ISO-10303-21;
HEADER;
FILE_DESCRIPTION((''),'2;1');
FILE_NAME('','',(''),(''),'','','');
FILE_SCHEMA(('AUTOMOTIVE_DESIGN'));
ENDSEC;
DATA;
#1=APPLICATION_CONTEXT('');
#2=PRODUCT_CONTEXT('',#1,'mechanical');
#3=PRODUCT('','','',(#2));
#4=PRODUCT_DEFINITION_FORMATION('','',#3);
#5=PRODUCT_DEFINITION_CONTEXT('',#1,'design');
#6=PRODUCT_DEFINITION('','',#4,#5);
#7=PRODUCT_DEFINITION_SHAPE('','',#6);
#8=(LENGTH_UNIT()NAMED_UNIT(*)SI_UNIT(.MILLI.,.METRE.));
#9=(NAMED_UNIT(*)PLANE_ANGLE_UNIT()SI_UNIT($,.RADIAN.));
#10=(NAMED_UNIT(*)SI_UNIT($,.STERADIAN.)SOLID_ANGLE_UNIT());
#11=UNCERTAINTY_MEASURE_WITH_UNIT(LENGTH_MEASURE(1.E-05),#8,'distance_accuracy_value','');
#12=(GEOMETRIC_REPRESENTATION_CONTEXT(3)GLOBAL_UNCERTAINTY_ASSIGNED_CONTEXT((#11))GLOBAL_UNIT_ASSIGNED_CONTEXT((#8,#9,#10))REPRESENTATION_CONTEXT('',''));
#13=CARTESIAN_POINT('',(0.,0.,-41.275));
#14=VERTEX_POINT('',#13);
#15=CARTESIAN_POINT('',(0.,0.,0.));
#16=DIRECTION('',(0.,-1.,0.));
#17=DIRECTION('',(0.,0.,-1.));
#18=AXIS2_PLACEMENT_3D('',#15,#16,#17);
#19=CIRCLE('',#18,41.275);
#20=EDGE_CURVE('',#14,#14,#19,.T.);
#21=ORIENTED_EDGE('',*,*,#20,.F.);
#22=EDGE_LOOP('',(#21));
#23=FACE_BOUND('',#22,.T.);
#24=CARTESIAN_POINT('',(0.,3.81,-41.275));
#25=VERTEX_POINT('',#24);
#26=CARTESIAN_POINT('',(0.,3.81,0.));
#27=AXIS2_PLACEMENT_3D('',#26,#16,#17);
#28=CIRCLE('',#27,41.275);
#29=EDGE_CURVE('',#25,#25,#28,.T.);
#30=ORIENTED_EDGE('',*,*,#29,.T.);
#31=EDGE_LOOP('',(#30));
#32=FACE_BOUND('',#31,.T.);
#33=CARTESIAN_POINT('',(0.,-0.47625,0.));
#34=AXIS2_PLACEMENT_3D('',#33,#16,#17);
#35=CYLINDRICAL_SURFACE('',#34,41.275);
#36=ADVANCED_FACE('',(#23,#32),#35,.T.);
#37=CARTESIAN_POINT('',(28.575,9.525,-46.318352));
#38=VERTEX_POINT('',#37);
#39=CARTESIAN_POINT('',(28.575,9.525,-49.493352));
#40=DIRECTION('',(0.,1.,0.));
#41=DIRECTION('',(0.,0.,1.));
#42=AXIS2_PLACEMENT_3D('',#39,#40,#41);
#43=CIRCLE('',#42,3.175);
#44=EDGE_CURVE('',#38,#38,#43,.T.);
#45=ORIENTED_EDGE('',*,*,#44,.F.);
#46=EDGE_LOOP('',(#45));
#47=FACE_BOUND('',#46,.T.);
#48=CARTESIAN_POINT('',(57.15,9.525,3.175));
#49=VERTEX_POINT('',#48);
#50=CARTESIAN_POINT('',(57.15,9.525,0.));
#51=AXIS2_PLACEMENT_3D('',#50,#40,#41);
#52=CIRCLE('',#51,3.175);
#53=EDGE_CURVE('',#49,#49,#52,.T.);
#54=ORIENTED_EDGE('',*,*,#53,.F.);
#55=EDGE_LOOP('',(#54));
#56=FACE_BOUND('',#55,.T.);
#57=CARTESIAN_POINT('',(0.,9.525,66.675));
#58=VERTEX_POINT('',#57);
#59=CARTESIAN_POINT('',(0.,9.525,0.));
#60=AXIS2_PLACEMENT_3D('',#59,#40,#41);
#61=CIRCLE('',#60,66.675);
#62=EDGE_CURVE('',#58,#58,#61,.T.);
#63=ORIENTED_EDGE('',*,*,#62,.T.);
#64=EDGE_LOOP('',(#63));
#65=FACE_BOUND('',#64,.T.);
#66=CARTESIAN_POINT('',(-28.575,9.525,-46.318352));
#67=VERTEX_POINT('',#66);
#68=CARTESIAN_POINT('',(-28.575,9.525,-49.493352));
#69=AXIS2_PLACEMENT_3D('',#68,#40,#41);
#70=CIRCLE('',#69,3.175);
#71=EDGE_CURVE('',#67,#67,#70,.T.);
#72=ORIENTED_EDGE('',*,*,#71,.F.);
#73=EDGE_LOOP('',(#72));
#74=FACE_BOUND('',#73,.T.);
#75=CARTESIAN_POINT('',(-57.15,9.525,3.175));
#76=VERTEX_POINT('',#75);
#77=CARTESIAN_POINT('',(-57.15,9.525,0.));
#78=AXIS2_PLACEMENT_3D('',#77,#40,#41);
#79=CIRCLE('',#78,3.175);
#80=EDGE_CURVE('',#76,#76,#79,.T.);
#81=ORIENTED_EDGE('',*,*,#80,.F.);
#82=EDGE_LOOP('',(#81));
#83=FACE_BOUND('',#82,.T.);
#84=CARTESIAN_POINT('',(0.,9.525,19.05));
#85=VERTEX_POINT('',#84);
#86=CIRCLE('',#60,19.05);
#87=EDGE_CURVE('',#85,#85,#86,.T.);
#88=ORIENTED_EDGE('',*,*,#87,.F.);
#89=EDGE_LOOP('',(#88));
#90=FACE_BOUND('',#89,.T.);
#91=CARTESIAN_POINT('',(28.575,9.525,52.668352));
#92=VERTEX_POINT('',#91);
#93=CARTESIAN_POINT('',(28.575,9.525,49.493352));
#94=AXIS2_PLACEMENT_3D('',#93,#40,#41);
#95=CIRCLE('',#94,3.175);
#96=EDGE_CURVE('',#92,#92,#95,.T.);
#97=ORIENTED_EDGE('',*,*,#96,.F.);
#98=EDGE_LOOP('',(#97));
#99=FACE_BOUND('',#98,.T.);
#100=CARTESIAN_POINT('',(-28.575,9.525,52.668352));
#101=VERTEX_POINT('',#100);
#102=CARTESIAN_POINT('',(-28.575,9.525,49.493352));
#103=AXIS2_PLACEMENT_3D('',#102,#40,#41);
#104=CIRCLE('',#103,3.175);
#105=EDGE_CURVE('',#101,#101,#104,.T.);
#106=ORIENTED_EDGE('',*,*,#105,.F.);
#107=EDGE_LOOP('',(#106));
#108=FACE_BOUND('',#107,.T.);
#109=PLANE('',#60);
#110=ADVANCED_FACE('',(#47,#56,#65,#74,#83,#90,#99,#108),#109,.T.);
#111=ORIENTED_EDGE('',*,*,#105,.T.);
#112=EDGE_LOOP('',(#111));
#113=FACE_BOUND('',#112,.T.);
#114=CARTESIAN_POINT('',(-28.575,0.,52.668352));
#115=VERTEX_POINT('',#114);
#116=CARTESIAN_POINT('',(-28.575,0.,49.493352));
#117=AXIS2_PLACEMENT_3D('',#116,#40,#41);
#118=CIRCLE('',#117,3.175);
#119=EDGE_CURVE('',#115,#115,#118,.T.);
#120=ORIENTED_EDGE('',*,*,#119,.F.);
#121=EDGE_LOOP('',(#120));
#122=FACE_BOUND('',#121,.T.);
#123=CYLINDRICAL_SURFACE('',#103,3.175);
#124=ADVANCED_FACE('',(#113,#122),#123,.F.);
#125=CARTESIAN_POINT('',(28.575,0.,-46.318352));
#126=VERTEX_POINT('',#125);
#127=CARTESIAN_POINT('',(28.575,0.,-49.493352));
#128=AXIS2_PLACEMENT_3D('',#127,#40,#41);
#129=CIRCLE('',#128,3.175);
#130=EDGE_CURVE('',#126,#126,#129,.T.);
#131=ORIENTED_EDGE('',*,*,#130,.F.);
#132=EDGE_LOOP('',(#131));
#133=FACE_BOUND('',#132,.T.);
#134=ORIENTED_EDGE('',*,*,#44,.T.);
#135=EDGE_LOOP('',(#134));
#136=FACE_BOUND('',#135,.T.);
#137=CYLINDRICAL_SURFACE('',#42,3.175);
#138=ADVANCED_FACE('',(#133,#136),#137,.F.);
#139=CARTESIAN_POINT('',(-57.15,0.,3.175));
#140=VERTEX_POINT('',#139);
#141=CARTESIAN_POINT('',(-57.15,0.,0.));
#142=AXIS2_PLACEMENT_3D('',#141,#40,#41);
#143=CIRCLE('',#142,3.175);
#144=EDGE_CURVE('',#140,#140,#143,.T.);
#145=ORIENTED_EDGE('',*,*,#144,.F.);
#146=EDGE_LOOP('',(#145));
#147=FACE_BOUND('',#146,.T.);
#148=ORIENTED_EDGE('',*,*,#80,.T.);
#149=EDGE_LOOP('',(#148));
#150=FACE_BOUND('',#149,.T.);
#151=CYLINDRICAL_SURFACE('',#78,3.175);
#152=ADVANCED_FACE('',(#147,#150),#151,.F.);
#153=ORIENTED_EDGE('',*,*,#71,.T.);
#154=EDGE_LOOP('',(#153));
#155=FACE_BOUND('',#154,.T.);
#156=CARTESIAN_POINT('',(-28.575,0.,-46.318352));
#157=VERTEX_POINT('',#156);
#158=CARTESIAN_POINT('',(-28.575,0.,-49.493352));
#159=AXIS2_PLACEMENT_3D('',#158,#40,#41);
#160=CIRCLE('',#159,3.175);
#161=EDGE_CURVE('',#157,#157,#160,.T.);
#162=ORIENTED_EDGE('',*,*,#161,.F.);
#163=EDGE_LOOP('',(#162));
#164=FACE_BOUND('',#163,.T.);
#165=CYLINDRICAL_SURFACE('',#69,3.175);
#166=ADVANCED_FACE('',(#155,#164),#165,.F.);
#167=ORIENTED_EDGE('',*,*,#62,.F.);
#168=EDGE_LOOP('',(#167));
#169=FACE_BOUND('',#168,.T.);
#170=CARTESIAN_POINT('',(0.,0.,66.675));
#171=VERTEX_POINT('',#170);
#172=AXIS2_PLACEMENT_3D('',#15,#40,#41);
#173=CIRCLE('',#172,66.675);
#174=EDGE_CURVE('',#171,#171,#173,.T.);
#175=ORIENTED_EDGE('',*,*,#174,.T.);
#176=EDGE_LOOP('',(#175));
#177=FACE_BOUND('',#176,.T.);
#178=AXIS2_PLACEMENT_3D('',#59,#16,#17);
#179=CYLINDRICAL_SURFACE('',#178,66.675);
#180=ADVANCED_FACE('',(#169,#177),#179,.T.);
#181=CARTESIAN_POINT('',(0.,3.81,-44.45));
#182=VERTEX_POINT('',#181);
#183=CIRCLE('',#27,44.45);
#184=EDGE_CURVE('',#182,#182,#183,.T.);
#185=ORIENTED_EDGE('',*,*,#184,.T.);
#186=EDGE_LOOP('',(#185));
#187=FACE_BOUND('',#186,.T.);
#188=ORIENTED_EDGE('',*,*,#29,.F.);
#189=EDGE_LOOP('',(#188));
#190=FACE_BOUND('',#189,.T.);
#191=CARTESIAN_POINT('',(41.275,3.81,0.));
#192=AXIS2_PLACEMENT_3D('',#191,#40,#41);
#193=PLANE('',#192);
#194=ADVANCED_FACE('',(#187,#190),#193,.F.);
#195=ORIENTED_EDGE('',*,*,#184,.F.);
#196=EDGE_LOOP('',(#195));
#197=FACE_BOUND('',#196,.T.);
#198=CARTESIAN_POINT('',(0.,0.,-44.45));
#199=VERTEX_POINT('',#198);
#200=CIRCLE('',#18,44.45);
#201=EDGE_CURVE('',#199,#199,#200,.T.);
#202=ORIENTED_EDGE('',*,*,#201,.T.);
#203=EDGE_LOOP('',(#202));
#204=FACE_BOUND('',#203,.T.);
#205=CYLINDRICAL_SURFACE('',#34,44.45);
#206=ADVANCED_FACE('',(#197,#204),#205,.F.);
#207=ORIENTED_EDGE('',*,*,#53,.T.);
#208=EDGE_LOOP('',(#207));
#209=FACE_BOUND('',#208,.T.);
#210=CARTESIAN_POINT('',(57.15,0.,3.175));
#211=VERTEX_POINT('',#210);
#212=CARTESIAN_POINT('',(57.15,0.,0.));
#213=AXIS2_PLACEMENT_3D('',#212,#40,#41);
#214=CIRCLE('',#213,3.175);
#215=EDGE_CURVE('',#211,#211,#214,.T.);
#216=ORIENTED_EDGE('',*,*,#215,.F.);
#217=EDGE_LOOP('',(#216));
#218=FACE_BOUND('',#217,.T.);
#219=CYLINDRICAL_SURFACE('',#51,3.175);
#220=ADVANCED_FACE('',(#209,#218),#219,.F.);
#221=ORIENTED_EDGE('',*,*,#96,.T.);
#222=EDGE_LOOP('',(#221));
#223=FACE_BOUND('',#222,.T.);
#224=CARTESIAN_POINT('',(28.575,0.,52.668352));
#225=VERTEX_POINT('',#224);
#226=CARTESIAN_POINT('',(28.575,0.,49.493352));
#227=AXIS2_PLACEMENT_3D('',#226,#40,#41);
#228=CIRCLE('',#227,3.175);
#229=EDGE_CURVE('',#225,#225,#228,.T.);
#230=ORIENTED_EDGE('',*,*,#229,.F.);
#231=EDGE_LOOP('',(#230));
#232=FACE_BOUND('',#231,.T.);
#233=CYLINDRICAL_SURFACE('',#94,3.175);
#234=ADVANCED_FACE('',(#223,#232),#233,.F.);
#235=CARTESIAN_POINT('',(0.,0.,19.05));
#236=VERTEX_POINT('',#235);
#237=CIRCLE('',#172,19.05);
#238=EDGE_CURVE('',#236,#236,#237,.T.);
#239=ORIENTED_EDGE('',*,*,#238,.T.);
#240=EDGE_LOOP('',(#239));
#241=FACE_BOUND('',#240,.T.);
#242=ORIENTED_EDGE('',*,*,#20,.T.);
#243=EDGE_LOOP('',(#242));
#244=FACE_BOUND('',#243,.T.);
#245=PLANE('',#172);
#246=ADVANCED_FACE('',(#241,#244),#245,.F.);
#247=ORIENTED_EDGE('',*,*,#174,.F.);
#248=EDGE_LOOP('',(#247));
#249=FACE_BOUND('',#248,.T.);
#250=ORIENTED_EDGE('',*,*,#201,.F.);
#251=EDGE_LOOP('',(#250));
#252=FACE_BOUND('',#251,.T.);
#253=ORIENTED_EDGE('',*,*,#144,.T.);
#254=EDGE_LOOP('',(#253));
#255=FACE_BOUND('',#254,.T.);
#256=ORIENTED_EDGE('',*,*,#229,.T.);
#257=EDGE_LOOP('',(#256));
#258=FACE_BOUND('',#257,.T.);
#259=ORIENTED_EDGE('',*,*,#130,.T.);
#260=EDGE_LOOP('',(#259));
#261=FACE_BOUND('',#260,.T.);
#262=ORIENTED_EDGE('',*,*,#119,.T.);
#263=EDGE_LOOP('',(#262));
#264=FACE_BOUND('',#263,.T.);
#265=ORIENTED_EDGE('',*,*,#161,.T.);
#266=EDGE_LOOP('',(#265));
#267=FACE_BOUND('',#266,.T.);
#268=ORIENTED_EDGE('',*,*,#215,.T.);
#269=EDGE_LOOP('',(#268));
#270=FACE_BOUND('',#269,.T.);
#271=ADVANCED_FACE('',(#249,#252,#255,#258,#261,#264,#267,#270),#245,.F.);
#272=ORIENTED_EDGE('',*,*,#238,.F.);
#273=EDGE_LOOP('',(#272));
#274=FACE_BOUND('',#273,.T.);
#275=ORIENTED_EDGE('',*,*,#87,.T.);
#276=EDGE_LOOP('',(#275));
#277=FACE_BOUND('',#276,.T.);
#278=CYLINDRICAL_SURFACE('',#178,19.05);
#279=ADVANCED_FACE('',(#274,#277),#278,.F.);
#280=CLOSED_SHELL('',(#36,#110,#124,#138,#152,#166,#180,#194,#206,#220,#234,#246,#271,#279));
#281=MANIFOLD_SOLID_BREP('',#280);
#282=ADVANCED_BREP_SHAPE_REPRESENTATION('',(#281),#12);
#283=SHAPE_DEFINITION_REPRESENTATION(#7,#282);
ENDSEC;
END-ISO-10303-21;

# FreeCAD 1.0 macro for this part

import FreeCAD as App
import Part
import Sketcher
from FreeCAD import Vector
Q = App.Units.Quantity

doc = App.newDocument("Part")
body = doc.addObject("PartDesign::Body", "Body")

sketch1 = doc.addObject("Sketcher::SketchObject", "Sketch")
body.addObject(sketch1)
sketch1.AttachmentSupport = (doc.XZ_Plane, [""])
sketch1.MapMode = "FlatFace"
sketch1.addGeometry([
    Part.Circle(Vector(0, 0, 0), Vector(0, 0, 1), 67),
    Part.Circle(Vector(0, 0, 0), Vector(0, 0, 1), 19),
], False)
sketch1.addConstraint([
    Sketcher.Constraint("Coincident", 0, 3, -1, 1),
    Sketcher.Constraint("Coincident", 1, 3, -1, 1),
    Sketcher.Constraint("Diameter", 1, Q("1.5 in")),
    Sketcher.Constraint("Diameter", 0, Q("5.25 in")),
])
pad1 = doc.addObject("PartDesign::Pad", "Pad")
body.addObject(pad1)
pad1.Profile = sketch1
pad1.Length = Q("0.375 in")
pad1.Reversed = True

sketch2 = doc.addObject("Sketcher::SketchObject", "Sketch001")
body.addObject(sketch2)
sketch2.AttachmentSupport = (doc.XY_Plane, [""])
sketch2.MapMode = "FlatFace"
sketch2.addGeometry([
    Part.LineSegment(Vector(41.3, 3.8, 0), Vector(41.3, 0, 0)),
    Part.LineSegment(Vector(41.3, 0, 0), Vector(44.5, 0, 0)),
    Part.LineSegment(Vector(44.5, 0, 0), Vector(44.5, 3.8, 0)),
    Part.LineSegment(Vector(44.5, 3.8, 0), Vector(41.3, 3.8, 0)),
], False)
sketch2.addConstraint([
    Sketcher.Constraint("Coincident", 0, 2, 1, 1),
    Sketcher.Constraint("Coincident", 1, 2, 2, 1),
    Sketcher.Constraint("Coincident", 2, 2, 3, 1),
    Sketcher.Constraint("Coincident", 3, 2, 0, 1),
    Sketcher.Constraint("Vertical", 0),
    Sketcher.Constraint("Horizontal", 1),
    Sketcher.Constraint("Vertical", 2),
    Sketcher.Constraint("Horizontal", 3),
    Sketcher.Constraint("PointOnObject", 0, 2, -1),
    Sketcher.Constraint("DistanceY", 0, 2, 0, 1, Q("0.15 in")),
    Sketcher.Constraint("DistanceX", 1, 1, 1, 2, Q("0.125 in")),
    Sketcher.Constraint("DistanceX", -1, 1, 1, 2, Q("1.75 in")),
])
groove = doc.addObject("PartDesign::Groove", "Groove")
body.addObject(groove)
groove.Profile = sketch2
groove.ReferenceAxis = (sketch2, ["V_Axis"])
groove.Angle = 360

sketch3 = doc.addObject("Sketcher::SketchObject", "Sketch002")
body.addObject(sketch3)
sketch3.AttachmentSupport = (doc.XZ_Plane, [""])
sketch3.MapMode = "FlatFace"
sketch3.AttachmentOffset = App.Placement(Vector(0, 0, -0.375 * 25.4), App.Rotation())
sketch3.addGeometry(Part.Circle(Vector(57.1, 0, 0), Vector(0, 0, 1), 3.2), False)
sketch3.addConstraint([
    Sketcher.Constraint("PointOnObject", 0, 3, -1),
    Sketcher.Constraint("Diameter", 0, Q("0.25 in")),
    Sketcher.Constraint("DistanceX", -1, 1, 0, 3, Q("2.25 in")),
])
doc.recompute()
hole = doc.addObject("PartDesign::Hole", "Hole")
body.addObject(hole)
hole.Profile = sketch3
hole.ThreadType = "None"
hole.Diameter = Q("0.25 in")
hole.DepthType = "Dimension"
hole.Depth = 9.526
hole.DrillPoint = "Flat"
hole.Reversed = True
doc.recompute()

polarpattern = doc.addObject("PartDesign::PolarPattern", "PolarPattern")
body.addObject(polarpattern)
polarpattern.Originals = [hole]
polarpattern.Axis = (doc.Y_Axis, [""])
polarpattern.Angle = 360
polarpattern.Occurrences = 6
body.Tip = polarpattern

doc.recompute()
